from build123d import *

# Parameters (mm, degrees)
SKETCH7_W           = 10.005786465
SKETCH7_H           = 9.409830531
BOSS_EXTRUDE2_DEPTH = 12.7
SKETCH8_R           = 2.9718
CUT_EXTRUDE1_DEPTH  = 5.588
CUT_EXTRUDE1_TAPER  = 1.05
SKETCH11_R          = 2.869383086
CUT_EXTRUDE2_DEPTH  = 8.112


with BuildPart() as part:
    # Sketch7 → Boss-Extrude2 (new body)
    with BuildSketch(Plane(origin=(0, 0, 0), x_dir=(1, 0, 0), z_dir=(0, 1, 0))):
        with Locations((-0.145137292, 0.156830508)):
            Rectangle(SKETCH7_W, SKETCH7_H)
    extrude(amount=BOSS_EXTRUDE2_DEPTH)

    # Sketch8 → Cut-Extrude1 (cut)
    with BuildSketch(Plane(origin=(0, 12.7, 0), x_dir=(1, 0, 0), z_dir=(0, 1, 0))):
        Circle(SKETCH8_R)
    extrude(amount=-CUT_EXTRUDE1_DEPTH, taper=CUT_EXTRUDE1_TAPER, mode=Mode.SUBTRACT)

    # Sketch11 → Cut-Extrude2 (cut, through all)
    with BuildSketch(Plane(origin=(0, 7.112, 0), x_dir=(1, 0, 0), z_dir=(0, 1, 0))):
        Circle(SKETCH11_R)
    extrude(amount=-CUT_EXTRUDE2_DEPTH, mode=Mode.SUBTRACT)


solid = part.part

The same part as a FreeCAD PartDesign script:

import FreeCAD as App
import Part
import Sketcher
from FreeCAD import Vector
Q = App.Units.Quantity

doc = App.newDocument("Part")
body = doc.addObject("PartDesign::Body", "Body")

# Sketch on XZ plane
sketch1 = body.newObject("Sketcher::SketchObject", "Sketch")
sketch1.AttachmentSupport = (doc.getObject("XZ_Plane"), [""])
sketch1.MapMode = "FlatFace"
sketch1.addGeometry(Part.LineSegment(Vector(-5, -5, 0), Vector(-5, 5, 0)), False)
sketch1.addGeometry(Part.LineSegment(Vector(-5, 5, 0), Vector(5, 5, 0)), False)
sketch1.addGeometry(Part.LineSegment(Vector(5, 5, 0), Vector(5, -5, 0)), False)
sketch1.addGeometry(Part.LineSegment(Vector(5, -5, 0), Vector(-5, -5, 0)), False)
sketch1.addConstraint(Sketcher.Constraint("Coincident", 0, 2, 1, 1))
sketch1.addConstraint(Sketcher.Constraint("Coincident", 1, 2, 2, 1))
sketch1.addConstraint(Sketcher.Constraint("Coincident", 2, 2, 3, 1))
sketch1.addConstraint(Sketcher.Constraint("Coincident", 3, 2, 0, 1))
sketch1.addConstraint(Sketcher.Constraint("Vertical", 0))
sketch1.addConstraint(Sketcher.Constraint("Horizontal", 1))
sketch1.addConstraint(Sketcher.Constraint("Vertical", 2))
sketch1.addConstraint(Sketcher.Constraint("Horizontal", 3))
sketch1.addConstraint(Sketcher.Constraint("DistanceY", 0, 1, 0, 2, Q("9.409831 mm")))
sketch1.addConstraint(Sketcher.Constraint("DistanceX", 1, 1, 1, 2, Q("10.005786 mm")))
sketch1.addConstraint(Sketcher.Constraint("DistanceX", 0, 2, -1, 1, Q("5.148031 mm")))
sketch1.addConstraint(Sketcher.Constraint("DistanceY", -1, 1, 0, 2, Q("4.548085 mm")))
pad1 = body.newObject("PartDesign::Pad", "Pad")
pad1.Profile = sketch1
pad1.Length = Q("0.5 in")
pad1.Reversed = True

# Sketch on XZ plane
sketch2 = body.newObject("Sketcher::SketchObject", "Sketch001")
sketch2.AttachmentSupport = (doc.getObject("XZ_Plane"), [""])
sketch2.MapMode = "FlatFace"
sketch2.AttachmentOffset = App.Placement(Vector(0, 0, -0.5 * 25.4), App.Rotation())
sketch2.addGeometry(Part.Circle(Vector(0, 0, 0), Vector(0, 0, 1), 3), False)
sketch2.addConstraint(Sketcher.Constraint("Coincident", 0, 3, -1, 1))
sketch2.addConstraint(Sketcher.Constraint("Diameter", 0, Q("0.234 in")))
pocket1 = body.newObject("PartDesign::Pocket", "Pocket")
pocket1.Profile = sketch2
pocket1.Length = Q("0.22 in")
pocket1.Reversed = True
pocket1.TaperAngle = -1.05

# Sketch on XZ plane
sketch3 = body.newObject("Sketcher::SketchObject", "Sketch002")
sketch3.AttachmentSupport = (doc.getObject("XZ_Plane"), [""])
sketch3.MapMode = "FlatFace"
sketch3.AttachmentOffset = App.Placement(Vector(0, 0, -0.28 * 25.4), App.Rotation())
sketch3.addGeometry(Part.Circle(Vector(0, 0, 0), Vector(0, 0, 1), 2.9), False)
sketch3.addConstraint(Sketcher.Constraint("Coincident", 0, 3, -1, 1))
sketch3.addConstraint(Sketcher.Constraint("Diameter", 0, Q("5.738766 mm")))
pocket2 = body.newObject("PartDesign::Pocket", "Pocket001")
pocket2.Profile = sketch3
pocket2.Type = "ThroughAll"
pocket2.Reversed = True

doc.recompute()
